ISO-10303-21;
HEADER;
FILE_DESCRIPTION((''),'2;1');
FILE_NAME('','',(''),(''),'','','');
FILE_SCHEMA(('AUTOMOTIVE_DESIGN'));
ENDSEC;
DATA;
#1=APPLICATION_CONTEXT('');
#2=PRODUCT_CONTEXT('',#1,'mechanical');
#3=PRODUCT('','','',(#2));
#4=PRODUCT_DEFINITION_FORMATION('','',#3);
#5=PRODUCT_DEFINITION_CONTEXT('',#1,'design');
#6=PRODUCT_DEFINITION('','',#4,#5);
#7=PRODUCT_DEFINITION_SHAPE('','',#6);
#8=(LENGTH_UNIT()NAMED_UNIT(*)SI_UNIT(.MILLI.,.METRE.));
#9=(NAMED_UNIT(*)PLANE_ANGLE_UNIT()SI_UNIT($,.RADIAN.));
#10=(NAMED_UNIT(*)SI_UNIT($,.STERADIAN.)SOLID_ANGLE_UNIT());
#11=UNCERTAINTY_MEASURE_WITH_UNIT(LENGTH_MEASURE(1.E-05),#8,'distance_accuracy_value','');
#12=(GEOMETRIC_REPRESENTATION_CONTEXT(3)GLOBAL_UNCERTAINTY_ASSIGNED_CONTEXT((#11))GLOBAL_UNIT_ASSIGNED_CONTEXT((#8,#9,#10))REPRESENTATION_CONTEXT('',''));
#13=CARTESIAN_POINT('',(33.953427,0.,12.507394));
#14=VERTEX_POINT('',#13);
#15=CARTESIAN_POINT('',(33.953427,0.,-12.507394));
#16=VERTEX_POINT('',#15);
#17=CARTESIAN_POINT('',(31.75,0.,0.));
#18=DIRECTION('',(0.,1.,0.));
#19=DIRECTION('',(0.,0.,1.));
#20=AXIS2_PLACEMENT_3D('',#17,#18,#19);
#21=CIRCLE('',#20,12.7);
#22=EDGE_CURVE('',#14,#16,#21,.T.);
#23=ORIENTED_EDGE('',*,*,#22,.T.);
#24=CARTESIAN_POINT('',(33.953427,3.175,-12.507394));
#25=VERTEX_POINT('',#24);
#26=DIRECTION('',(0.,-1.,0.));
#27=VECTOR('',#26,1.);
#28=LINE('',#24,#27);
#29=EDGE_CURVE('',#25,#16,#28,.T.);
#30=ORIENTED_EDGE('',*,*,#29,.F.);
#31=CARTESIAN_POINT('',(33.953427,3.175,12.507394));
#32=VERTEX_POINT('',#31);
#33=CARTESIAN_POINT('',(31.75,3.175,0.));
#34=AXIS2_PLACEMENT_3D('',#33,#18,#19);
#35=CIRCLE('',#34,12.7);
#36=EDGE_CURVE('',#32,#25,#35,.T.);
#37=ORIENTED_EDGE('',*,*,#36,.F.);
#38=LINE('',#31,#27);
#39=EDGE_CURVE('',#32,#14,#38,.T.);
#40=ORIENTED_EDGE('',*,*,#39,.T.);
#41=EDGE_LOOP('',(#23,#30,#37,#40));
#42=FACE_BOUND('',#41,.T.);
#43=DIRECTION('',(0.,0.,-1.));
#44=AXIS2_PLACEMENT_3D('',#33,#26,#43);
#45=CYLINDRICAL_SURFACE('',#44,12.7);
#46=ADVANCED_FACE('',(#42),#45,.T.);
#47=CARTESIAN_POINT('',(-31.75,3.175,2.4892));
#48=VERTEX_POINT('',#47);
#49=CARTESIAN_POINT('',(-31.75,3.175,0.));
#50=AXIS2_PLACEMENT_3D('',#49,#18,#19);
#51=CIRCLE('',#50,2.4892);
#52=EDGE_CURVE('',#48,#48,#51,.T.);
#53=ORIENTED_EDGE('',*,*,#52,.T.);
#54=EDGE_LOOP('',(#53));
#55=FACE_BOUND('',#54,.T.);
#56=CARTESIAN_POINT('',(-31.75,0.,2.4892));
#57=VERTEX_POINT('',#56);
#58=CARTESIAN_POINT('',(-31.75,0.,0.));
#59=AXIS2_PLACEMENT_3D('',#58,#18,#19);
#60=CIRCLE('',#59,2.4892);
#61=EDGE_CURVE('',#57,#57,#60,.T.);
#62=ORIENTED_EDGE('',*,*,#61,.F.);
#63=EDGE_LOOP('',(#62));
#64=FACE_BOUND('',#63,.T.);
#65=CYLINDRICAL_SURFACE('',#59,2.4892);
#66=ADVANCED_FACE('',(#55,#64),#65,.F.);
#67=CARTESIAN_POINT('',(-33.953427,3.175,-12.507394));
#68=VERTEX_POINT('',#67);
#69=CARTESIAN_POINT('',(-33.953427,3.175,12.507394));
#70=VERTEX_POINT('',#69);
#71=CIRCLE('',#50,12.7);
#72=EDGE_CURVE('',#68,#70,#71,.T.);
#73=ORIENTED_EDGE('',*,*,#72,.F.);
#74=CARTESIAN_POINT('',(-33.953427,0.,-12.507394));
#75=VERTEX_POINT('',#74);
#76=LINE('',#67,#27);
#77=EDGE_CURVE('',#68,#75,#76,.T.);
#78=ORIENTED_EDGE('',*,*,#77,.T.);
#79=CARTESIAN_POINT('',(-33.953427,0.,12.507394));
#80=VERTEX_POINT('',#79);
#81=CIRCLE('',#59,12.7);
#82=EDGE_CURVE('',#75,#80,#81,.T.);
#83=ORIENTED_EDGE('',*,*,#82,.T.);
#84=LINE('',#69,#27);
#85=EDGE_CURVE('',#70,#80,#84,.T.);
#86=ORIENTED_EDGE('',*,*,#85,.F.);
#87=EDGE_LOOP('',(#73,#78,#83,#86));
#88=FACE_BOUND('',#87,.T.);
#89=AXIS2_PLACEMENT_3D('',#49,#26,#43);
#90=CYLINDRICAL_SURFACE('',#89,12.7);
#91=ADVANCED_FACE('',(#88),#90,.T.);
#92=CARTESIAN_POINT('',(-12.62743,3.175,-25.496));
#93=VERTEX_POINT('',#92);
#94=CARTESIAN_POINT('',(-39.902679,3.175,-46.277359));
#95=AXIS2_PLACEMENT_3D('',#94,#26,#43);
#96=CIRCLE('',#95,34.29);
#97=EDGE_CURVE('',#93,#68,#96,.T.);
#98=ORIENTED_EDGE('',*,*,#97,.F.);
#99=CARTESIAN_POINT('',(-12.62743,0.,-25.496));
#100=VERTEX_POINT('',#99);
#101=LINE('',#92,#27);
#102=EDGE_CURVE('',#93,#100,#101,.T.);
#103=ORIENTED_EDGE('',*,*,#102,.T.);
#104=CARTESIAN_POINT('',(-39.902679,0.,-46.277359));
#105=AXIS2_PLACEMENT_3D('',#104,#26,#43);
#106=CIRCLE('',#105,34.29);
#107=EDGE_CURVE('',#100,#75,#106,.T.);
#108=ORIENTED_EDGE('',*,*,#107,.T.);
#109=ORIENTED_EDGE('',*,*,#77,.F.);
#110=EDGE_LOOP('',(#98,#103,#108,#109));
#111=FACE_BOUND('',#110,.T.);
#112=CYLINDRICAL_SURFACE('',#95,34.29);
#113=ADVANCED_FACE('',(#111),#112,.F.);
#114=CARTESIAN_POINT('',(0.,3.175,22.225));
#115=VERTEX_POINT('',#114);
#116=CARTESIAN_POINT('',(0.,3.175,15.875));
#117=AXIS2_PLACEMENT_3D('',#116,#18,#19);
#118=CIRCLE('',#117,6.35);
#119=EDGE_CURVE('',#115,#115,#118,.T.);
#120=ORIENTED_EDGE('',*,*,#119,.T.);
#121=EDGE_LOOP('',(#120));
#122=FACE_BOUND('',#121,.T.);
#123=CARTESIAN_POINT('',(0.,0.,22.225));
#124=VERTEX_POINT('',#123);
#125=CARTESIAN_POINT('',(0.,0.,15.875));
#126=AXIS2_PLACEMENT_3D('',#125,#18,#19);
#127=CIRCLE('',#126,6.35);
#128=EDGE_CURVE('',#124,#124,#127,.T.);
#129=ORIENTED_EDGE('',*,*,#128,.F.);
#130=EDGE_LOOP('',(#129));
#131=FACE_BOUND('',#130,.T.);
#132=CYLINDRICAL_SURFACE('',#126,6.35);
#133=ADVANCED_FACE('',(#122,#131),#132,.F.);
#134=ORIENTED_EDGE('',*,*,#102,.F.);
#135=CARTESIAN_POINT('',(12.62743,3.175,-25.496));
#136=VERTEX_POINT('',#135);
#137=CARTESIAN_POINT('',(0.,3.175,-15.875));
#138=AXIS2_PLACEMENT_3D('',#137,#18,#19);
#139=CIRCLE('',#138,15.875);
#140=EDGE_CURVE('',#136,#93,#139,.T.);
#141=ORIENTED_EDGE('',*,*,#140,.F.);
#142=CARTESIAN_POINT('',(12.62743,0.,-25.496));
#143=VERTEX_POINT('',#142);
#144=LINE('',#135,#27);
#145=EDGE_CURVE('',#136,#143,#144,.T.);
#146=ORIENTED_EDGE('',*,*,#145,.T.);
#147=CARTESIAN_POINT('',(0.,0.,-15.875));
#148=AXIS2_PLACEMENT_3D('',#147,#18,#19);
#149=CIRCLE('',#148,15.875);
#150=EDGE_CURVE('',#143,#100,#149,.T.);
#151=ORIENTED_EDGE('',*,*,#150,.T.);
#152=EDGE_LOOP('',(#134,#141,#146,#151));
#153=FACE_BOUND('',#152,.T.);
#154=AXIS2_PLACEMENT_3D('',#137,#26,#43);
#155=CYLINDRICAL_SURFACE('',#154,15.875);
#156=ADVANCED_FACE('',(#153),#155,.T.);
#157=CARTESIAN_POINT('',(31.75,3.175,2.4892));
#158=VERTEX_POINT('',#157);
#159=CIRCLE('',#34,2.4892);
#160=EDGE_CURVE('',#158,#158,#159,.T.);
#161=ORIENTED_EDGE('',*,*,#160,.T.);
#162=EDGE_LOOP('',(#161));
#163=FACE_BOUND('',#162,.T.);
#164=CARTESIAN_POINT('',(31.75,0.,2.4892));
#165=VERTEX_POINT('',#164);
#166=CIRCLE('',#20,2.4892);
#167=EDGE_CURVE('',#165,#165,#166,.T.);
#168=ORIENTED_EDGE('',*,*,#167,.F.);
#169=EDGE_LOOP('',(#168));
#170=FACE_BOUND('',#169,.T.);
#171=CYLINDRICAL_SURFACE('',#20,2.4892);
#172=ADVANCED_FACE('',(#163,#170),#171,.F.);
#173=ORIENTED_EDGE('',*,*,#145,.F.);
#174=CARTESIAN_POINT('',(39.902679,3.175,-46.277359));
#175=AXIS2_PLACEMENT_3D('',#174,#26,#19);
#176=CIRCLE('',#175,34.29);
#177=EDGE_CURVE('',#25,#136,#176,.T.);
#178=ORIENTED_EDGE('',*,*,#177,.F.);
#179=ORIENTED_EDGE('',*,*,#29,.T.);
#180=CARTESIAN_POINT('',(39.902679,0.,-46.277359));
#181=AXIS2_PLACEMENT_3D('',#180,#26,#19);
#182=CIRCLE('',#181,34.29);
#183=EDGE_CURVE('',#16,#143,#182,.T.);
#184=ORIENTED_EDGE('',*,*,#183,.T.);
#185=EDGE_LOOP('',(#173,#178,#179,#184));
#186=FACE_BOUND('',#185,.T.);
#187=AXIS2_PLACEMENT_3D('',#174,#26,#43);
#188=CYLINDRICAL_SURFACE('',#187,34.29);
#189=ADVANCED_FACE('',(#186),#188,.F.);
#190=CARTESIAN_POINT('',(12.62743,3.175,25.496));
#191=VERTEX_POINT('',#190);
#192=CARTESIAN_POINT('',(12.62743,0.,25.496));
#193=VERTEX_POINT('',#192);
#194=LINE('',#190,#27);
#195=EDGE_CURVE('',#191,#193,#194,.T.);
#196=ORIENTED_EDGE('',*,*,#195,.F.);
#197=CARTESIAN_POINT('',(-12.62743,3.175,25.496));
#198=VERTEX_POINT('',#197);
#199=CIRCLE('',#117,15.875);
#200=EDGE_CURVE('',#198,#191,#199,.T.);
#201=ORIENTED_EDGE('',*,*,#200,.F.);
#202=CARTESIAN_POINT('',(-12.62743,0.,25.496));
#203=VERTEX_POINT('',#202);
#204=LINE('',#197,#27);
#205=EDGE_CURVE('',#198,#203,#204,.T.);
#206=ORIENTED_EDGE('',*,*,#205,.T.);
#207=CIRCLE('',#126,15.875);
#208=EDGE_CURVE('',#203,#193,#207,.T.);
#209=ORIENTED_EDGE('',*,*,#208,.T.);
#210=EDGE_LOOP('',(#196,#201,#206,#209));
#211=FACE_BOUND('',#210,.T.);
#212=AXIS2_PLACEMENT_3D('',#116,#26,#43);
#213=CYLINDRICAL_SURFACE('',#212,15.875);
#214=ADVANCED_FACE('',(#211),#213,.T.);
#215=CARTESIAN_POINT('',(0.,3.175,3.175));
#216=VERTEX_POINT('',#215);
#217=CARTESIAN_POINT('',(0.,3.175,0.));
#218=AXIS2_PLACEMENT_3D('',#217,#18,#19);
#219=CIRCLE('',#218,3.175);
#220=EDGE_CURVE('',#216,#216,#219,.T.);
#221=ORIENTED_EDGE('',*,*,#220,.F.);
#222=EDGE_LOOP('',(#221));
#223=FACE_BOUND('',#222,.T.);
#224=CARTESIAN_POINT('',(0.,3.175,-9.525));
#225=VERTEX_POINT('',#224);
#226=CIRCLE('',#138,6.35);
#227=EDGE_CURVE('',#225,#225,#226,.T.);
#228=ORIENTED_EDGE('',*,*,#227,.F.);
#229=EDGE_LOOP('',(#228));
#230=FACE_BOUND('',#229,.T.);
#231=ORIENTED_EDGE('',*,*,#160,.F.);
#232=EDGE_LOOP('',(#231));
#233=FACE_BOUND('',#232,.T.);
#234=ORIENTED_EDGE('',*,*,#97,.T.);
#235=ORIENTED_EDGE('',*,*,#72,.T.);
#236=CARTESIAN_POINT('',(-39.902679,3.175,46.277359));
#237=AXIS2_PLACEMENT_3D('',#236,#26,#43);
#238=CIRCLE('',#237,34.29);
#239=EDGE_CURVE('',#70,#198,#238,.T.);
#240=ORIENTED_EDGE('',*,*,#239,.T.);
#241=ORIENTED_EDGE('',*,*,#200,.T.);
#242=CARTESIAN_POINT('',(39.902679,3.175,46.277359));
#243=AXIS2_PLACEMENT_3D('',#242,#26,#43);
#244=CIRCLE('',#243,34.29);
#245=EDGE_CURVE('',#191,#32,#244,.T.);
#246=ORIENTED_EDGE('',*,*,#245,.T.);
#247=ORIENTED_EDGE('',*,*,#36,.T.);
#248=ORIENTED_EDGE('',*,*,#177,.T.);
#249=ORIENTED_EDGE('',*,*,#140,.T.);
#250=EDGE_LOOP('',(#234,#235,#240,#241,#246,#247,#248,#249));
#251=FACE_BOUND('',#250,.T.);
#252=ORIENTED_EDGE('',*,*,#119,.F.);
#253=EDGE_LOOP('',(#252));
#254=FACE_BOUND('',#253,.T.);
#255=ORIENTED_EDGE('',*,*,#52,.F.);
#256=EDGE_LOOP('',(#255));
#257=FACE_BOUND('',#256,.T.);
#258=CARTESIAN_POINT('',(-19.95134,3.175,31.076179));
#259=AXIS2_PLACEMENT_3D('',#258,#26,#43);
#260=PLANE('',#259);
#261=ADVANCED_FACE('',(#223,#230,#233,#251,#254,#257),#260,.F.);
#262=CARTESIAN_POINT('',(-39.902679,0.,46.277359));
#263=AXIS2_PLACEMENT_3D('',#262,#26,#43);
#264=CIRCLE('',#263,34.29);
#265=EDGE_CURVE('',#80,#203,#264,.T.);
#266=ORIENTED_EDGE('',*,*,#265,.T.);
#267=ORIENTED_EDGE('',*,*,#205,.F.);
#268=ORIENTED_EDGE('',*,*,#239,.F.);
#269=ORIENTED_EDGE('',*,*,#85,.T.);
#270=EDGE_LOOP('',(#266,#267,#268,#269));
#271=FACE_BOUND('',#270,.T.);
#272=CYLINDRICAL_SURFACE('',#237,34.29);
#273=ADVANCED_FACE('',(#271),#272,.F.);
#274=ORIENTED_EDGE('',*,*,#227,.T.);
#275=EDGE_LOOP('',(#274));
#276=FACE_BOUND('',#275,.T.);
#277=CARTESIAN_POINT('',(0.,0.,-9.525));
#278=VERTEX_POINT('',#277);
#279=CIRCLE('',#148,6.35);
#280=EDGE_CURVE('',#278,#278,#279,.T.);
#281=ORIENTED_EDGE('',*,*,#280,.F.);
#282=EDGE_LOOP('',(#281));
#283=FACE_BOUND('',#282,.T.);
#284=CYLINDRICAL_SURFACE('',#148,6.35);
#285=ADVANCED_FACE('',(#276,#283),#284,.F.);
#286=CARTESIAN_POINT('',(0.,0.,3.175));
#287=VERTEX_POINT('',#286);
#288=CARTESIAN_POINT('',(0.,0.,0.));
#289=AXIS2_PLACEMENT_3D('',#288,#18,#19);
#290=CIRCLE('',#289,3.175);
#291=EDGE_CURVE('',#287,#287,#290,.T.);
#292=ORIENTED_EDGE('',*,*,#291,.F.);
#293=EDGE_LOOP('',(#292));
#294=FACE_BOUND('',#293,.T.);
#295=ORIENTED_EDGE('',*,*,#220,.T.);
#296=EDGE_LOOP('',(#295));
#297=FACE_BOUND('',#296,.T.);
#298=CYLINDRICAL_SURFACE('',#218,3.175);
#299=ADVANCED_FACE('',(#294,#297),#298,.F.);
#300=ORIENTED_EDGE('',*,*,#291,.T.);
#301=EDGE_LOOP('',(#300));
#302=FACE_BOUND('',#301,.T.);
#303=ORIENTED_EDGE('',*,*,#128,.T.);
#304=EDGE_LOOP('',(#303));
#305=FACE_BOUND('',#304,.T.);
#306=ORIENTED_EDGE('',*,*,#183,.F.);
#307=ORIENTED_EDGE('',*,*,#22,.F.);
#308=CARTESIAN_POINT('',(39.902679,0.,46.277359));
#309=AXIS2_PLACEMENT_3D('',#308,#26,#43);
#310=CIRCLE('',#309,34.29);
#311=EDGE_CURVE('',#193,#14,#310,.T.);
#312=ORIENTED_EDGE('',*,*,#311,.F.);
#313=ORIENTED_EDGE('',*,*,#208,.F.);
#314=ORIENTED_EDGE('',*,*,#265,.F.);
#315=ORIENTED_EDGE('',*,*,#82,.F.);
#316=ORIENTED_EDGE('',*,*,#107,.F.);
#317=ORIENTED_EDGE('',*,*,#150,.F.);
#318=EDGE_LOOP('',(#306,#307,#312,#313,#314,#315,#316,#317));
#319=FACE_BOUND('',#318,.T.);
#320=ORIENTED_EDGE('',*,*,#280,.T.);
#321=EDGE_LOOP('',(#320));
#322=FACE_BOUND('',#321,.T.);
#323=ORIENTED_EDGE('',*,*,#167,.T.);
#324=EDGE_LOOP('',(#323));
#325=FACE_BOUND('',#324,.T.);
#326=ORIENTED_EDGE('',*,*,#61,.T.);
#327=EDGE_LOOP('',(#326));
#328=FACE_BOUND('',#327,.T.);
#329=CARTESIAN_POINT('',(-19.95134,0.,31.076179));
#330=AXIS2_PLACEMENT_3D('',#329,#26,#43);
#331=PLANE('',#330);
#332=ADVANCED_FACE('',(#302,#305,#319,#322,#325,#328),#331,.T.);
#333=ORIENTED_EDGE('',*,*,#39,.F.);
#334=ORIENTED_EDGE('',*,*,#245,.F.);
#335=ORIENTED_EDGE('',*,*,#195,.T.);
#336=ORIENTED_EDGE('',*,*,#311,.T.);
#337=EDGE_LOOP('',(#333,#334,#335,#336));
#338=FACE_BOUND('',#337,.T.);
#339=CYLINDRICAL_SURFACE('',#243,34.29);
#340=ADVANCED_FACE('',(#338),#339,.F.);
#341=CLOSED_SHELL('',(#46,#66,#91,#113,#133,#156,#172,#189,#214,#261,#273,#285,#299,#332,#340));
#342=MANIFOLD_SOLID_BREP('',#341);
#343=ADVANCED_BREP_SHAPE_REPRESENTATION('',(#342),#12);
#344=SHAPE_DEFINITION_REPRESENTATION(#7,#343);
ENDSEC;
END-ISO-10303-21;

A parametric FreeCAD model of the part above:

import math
import FreeCAD as App
import Part
import Sketcher
from FreeCAD import Vector
Q = App.Units.Quantity

doc = App.newDocument("Part")
params = doc.addObject("Spreadsheet::Sheet", "Params")
for row, (alias, value) in enumerate([
    ("sketch1_radius", "0.5 in"),
    ("sketch1_radius2", "1.35 in"),
    ("sketch1_radius3", "0.625 in"),
    ("pad1_length", "0.125 in"),
    ("sketch2_diameter", "0.25 in"),
    ("hole_diameter", "0.25 in"),
    ("sketch3_diameter", "0.5 in"),
    ("sketch4_diameter", "0.196 in"),
], start=1):
    params.set(f"A{row}", alias)
    params.set(f"B{row}", "=" + value)
    params.setAlias(f"B{row}", alias)

body = doc.addObject("PartDesign::Body", "Body")

sketch1 = doc.addObject("Sketcher::SketchObject", "Sketch")
body.addObject(sketch1)
sketch1.AttachmentSupport = (doc.XZ_Plane, [""])
sketch1.MapMode = "FlatFace"
sketch1.addGeometry([
    Part.ArcOfCircle(Part.Circle(Vector(0, -15.875, 0), Vector(0, 0, 1), 15.875), math.radians(-142.695764), math.radians(-37.304236)),
    Part.ArcOfCircle(Part.Circle(Vector(-39.902679, -46.277359, 0), Vector(0, 0, 1), 34.29), math.radians(37.304236), math.radians(80.008727)),
    Part.ArcOfCircle(Part.Circle(Vector(-31.75, 0, 0), Vector(0, 0, 1), 12.7), math.radians(99.991273), math.radians(260.008727)),
    Part.ArcOfCircle(Part.Circle(Vector(-39.902679, 46.277359, 0), Vector(0, 0, 1), 34.29), math.radians(-80.008727), math.radians(-37.304236)),
    Part.ArcOfCircle(Part.Circle(Vector(0, 15.875, 0), Vector(0, 0, 1), 15.875), math.radians(37.304236), math.radians(142.695764)),
    Part.ArcOfCircle(Part.Circle(Vector(39.902679, 46.277359, 0), Vector(0, 0, 1), 34.29), math.radians(-142.695764), math.radians(-99.991273)),
    Part.ArcOfCircle(Part.Circle(Vector(31.75, 0, 0), Vector(0, 0, 1), 12.7), math.radians(-80.008727), math.radians(80.008727)),
    Part.ArcOfCircle(Part.Circle(Vector(39.902679, -46.277359, 0), Vector(0, 0, 1), 34.29), math.radians(99.991273), math.radians(142.695764)),
], False)
sketch1.addConstraint([
    Sketcher.Constraint("Tangent", 0, 1, 1, 1),
    Sketcher.Constraint("Tangent", 1, 2, 2, 2),
    Sketcher.Constraint("Tangent", 2, 1, 3, 1),
    Sketcher.Constraint("Tangent", 3, 2, 4, 2),
    Sketcher.Constraint("Tangent", 4, 1, 5, 1),
    Sketcher.Constraint("Tangent", 5, 2, 6, 2),
    Sketcher.Constraint("Tangent", 6, 1, 7, 1),
    Sketcher.Constraint("Tangent", 7, 2, 0, 2),
    Sketcher.Constraint("Equal", 1, 3),
    Sketcher.Constraint("Equal", 0, 4),
    Sketcher.Constraint("Equal", 3, 5),
    Sketcher.Constraint("Equal", 2, 6),
    Sketcher.Constraint("Equal", 5, 7),
    Sketcher.Constraint("Symmetric", 0, 3, 4, 3, -1, 1),
    Sketcher.Constraint("Symmetric", 2, 3, 6, 3, -1, 1),
    Sketcher.Constraint("Symmetric", 3, 3, 5, 3, -2),
    Sketcher.Constraint("Radius", 2, Q("0.5 in")),
    Sketcher.Constraint("Radius", 1, Q("1.35 in")),
    Sketcher.Constraint("Radius", 0, Q("0.625 in")),
    Sketcher.Constraint("DistanceX", 2, 3, 6, 3, Q("2.5 in")),
    Sketcher.Constraint("DistanceY", 0, 3, 4, 3, Q("1.25 in")),
])
sketch1.setExpression("Constraints[16]", "Params.sketch1_radius")
sketch1.setExpression("Constraints[17]", "Params.sketch1_radius2")
sketch1.setExpression("Constraints[18]", "Params.sketch1_radius3")
pad1 = doc.addObject("PartDesign::Pad", "Pad")
body.addObject(pad1)
pad1.Profile = sketch1
pad1.setExpression("Length", "Params.pad1_length")
pad1.Reversed = True

sketch2 = doc.addObject("Sketcher::SketchObject", "Sketch001")
body.addObject(sketch2)
sketch2.AttachmentSupport = (doc.XZ_Plane, [""])
sketch2.MapMode = "FlatFace"
sketch2.AttachmentOffset = App.Placement(Vector(0, 0, -0.125 * 25.4), App.Rotation())
sketch2.addGeometry(Part.Circle(Vector(0, 0, 0), Vector(0, 0, 1), 3.175), False)
sketch2.addConstraint([
    Sketcher.Constraint("Coincident", 0, 3, -1, 1),
    Sketcher.Constraint("Diameter", 0, Q("0.25 in")),
])
sketch2.setExpression("Constraints[1]", "Params.sketch2_diameter")
doc.recompute()
hole = doc.addObject("PartDesign::Hole", "Hole")
body.addObject(hole)
hole.Profile = sketch2
hole.ThreadType = "None"
hole.setExpression("Diameter", "Params.hole_diameter")
hole.DepthType = "ThroughAll"
hole.Reversed = True

sketch3 = doc.addObject("Sketcher::SketchObject", "Sketch002")
body.addObject(sketch3)
sketch3.AttachmentSupport = (doc.XZ_Plane, [""])
sketch3.MapMode = "FlatFace"
sketch3.AttachmentOffset = App.Placement(Vector(0, 0, -0.125 * 25.4), App.Rotation())
sketch3.addGeometry([
    Part.Circle(Vector(0, -15.875, 0), Vector(0, 0, 1), 6.35),
    Part.Circle(Vector(0, 15.875, 0), Vector(0, 0, 1), 6.35),
], False)
sketch3.addConstraint([
    Sketcher.Constraint("Equal", 0, 1),
    Sketcher.Constraint("Symmetric", 0, 3, 1, 3, -1, 1),
    Sketcher.Constraint("PointOnObject", 0, 3, -2),
    Sketcher.Constraint("Diameter", 0, Q("0.5 in")),
    Sketcher.Constraint("DistanceY", 0, 3, 1, 3, Q("1.25 in")),
])
sketch3.setExpression("Constraints[3]", "Params.sketch3_diameter")
pocket1 = doc.addObject("PartDesign::Pocket", "Pocket")
body.addObject(pocket1)
pocket1.Profile = sketch3
pocket1.Type = "ThroughAll"
pocket1.Reversed = True

sketch4 = doc.addObject("Sketcher::SketchObject", "Sketch003")
body.addObject(sketch4)
sketch4.AttachmentSupport = (doc.XZ_Plane, [""])
sketch4.MapMode = "FlatFace"
sketch4.AttachmentOffset = App.Placement(Vector(0, 0, -0.125 * 25.4), App.Rotation())
sketch4.addGeometry([
    Part.Circle(Vector(-31.75, 0, 0), Vector(0, 0, 1), 2.4892),
    Part.Circle(Vector(31.75, 0, 0), Vector(0, 0, 1), 2.4892),
], False)
sketch4.addConstraint([
    Sketcher.Constraint("Equal", 0, 1),
    Sketcher.Constraint("Symmetric", 0, 3, 1, 3, -1, 1),
    Sketcher.Constraint("PointOnObject", 0, 3, -1),
    Sketcher.Constraint("Diameter", 0, Q("0.196 in")),
    Sketcher.Constraint("DistanceX", 0, 3, 1, 3, Q("2.5 in")),
])
sketch4.setExpression("Constraints[3]", "Params.sketch4_diameter")
pocket2 = doc.addObject("PartDesign::Pocket", "Pocket001")
body.addObject(pocket2)
pocket2.Profile = sketch4
pocket2.Type = "ThroughAll"
pocket2.Reversed = True

doc.recompute()
